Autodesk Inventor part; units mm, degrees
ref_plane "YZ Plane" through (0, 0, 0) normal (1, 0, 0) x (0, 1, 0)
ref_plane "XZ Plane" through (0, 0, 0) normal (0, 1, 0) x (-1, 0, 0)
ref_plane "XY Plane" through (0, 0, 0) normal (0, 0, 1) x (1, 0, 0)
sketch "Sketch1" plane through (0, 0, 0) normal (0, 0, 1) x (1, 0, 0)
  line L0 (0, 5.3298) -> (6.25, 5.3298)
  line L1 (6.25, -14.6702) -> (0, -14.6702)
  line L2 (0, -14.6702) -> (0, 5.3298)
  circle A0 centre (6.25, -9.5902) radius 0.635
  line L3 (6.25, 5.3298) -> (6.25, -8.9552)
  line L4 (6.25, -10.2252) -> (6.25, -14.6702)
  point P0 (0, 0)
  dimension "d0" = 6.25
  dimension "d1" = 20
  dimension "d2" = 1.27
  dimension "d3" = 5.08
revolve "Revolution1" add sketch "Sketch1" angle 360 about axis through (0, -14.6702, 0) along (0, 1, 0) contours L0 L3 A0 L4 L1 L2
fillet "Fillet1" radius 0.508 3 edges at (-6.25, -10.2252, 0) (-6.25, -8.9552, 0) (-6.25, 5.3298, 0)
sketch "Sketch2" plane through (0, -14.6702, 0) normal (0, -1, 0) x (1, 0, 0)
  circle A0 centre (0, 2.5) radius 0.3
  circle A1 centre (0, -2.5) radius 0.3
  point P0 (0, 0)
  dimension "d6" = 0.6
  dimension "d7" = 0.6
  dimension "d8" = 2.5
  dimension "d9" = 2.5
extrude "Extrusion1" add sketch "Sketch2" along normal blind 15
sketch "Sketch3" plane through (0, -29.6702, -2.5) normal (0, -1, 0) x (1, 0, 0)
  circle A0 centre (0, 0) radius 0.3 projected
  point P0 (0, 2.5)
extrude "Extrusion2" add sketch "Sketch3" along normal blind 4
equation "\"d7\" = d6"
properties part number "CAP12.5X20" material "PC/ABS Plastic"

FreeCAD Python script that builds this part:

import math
import FreeCAD as App
import Part
import Sketcher

V = App.Vector


def edges_at(feature, points):
    """Names of the edges that pass closest to the given points."""
    edges = feature.Shape.Edges
    near = lambda p: min(range(len(edges)), key=lambda i: edges[i].distToShape(Part.Vertex(*p))[0])
    return sorted({f"Edge{near(p) + 1}" for p in points})

doc = App.newDocument("Part")
body = doc.addObject("PartDesign::Body", "Body")

# Sketch on XY plane
sketch1 = body.newObject("Sketcher::SketchObject", "Sketch")
sketch1.AttachmentSupport = (doc.getObject("XY_Plane"), [""])
sketch1.MapMode = "FlatFace"
sketch1.addGeometry([
    Part.LineSegment(V(6.2, 5.3, 0), V(0, 5.3, 0)),  # 0
    Part.LineSegment(V(0, 5.3, 0), V(0, -14.7, 0)),  # 1
    Part.LineSegment(V(0, -14.7, 0), V(6.2, -14.7, 0)),  # 2
    Part.LineSegment(V(6.2, -14.7, 0), V(6.2, -10.2, 0)),  # 3
    Part.ArcOfCircle(Part.Circle(V(6.2, -9.6, 0), V(0, 0, 1), 0.6), math.radians(90), math.radians(270)),  # 4
    Part.LineSegment(V(6.2, -9, 0), V(6.2, 5.3, 0)),  # 5
], False)
sketch1.addConstraint([
    Sketcher.Constraint("Coincident", 0, 2, 1, 1),
    Sketcher.Constraint("Coincident", 1, 2, 2, 1),
    Sketcher.Constraint("Coincident", 2, 2, 3, 1),
    Sketcher.Constraint("Coincident", 3, 2, 4, 2),
    Sketcher.Constraint("Coincident", 4, 1, 5, 1),
    Sketcher.Constraint("Coincident", 5, 2, 0, 1),
    Sketcher.Constraint("Horizontal", 0),
    Sketcher.Constraint("Vertical", 1),
    Sketcher.Constraint("Horizontal", 2),
    Sketcher.Constraint("Vertical", 3),
    Sketcher.Constraint("Vertical", 5),
    Sketcher.Constraint("PointOnObject", 0, 2, -2),
    Sketcher.Constraint("Vertical", 4, 3, 2, 2),
    Sketcher.Constraint("Vertical", 3, 2, 4, 1),
    Sketcher.Constraint("DistanceY", 1, 2, 1, 1, 20.0),
    Sketcher.Constraint("Radius", 4, 0.635),
    Sketcher.Constraint("DistanceX", 0, 2, 0, 1, 6.25),
    Sketcher.Constraint("DistanceY", 1, 2, 4, 3, 5.08),
    Sketcher.Constraint("DistanceY", 4, 3, -1, 1, 9.5902),
])
revolution = body.newObject("PartDesign::Revolution", "Revolution")
revolution.Profile = sketch1
revolution.ReferenceAxis = (sketch1, ["V_Axis"])
revolution.Angle = 360
doc.recompute()

fillet = body.newObject("PartDesign::Fillet", "Fillet")
fillet.Base = (revolution, edges_at(revolution, [(-6.25, -10.225, 0), (-6.25, -8.955, 0), (-6.25, 5.33, 0)]))
fillet.Radius = 0.508

# Sketch on XZ plane
sketch2 = body.newObject("Sketcher::SketchObject", "Sketch001")
sketch2.AttachmentSupport = (doc.getObject("XZ_Plane"), [""])
sketch2.MapMode = "FlatFace"
sketch2.AttachmentOffset = App.Placement(V(0, 0, 14.6702), App.Rotation())
sketch2.addGeometry([
    Part.Circle(V(0, 2.5, 0), V(0, 0, 1), 0.3),
    Part.Circle(V(0, -2.5, 0), V(0, 0, 1), 0.3),
], False)
sketch2.addConstraint([
    Sketcher.Constraint("Equal", 0, 1),
    Sketcher.Constraint("Symmetric", 0, 3, 1, 3, -1, 1),
    Sketcher.Constraint("PointOnObject", 0, 3, -2),
    Sketcher.Constraint("Diameter", 0, 0.6),
    Sketcher.Constraint("DistanceY", -1, 1, 0, 3, 2.5),
])
pad1 = body.newObject("PartDesign::Pad", "Pad")
pad1.Profile = sketch2
pad1.Length = 15

# Sketch on XZ plane
sketch3 = body.newObject("Sketcher::SketchObject", "Sketch002")
sketch3.AttachmentSupport = (doc.getObject("XZ_Plane"), [""])
sketch3.MapMode = "FlatFace"
sketch3.AttachmentOffset = App.Placement(V(0, 0, 29.6702), App.Rotation())
sketch3.addGeometry(Part.Circle(V(0, -2.5, 0), V(0, 0, 1), 0.3), False)
sketch3.addConstraint([
    Sketcher.Constraint("PointOnObject", 0, 3, -2),
    Sketcher.Constraint("Diameter", 0, 0.6),
    Sketcher.Constraint("DistanceY", 0, 3, -1, 1, 2.5),
])
pad2 = body.newObject("PartDesign::Pad", "Pad001")
pad2.Profile = sketch3
pad2.Length = 4

doc.recompute()
